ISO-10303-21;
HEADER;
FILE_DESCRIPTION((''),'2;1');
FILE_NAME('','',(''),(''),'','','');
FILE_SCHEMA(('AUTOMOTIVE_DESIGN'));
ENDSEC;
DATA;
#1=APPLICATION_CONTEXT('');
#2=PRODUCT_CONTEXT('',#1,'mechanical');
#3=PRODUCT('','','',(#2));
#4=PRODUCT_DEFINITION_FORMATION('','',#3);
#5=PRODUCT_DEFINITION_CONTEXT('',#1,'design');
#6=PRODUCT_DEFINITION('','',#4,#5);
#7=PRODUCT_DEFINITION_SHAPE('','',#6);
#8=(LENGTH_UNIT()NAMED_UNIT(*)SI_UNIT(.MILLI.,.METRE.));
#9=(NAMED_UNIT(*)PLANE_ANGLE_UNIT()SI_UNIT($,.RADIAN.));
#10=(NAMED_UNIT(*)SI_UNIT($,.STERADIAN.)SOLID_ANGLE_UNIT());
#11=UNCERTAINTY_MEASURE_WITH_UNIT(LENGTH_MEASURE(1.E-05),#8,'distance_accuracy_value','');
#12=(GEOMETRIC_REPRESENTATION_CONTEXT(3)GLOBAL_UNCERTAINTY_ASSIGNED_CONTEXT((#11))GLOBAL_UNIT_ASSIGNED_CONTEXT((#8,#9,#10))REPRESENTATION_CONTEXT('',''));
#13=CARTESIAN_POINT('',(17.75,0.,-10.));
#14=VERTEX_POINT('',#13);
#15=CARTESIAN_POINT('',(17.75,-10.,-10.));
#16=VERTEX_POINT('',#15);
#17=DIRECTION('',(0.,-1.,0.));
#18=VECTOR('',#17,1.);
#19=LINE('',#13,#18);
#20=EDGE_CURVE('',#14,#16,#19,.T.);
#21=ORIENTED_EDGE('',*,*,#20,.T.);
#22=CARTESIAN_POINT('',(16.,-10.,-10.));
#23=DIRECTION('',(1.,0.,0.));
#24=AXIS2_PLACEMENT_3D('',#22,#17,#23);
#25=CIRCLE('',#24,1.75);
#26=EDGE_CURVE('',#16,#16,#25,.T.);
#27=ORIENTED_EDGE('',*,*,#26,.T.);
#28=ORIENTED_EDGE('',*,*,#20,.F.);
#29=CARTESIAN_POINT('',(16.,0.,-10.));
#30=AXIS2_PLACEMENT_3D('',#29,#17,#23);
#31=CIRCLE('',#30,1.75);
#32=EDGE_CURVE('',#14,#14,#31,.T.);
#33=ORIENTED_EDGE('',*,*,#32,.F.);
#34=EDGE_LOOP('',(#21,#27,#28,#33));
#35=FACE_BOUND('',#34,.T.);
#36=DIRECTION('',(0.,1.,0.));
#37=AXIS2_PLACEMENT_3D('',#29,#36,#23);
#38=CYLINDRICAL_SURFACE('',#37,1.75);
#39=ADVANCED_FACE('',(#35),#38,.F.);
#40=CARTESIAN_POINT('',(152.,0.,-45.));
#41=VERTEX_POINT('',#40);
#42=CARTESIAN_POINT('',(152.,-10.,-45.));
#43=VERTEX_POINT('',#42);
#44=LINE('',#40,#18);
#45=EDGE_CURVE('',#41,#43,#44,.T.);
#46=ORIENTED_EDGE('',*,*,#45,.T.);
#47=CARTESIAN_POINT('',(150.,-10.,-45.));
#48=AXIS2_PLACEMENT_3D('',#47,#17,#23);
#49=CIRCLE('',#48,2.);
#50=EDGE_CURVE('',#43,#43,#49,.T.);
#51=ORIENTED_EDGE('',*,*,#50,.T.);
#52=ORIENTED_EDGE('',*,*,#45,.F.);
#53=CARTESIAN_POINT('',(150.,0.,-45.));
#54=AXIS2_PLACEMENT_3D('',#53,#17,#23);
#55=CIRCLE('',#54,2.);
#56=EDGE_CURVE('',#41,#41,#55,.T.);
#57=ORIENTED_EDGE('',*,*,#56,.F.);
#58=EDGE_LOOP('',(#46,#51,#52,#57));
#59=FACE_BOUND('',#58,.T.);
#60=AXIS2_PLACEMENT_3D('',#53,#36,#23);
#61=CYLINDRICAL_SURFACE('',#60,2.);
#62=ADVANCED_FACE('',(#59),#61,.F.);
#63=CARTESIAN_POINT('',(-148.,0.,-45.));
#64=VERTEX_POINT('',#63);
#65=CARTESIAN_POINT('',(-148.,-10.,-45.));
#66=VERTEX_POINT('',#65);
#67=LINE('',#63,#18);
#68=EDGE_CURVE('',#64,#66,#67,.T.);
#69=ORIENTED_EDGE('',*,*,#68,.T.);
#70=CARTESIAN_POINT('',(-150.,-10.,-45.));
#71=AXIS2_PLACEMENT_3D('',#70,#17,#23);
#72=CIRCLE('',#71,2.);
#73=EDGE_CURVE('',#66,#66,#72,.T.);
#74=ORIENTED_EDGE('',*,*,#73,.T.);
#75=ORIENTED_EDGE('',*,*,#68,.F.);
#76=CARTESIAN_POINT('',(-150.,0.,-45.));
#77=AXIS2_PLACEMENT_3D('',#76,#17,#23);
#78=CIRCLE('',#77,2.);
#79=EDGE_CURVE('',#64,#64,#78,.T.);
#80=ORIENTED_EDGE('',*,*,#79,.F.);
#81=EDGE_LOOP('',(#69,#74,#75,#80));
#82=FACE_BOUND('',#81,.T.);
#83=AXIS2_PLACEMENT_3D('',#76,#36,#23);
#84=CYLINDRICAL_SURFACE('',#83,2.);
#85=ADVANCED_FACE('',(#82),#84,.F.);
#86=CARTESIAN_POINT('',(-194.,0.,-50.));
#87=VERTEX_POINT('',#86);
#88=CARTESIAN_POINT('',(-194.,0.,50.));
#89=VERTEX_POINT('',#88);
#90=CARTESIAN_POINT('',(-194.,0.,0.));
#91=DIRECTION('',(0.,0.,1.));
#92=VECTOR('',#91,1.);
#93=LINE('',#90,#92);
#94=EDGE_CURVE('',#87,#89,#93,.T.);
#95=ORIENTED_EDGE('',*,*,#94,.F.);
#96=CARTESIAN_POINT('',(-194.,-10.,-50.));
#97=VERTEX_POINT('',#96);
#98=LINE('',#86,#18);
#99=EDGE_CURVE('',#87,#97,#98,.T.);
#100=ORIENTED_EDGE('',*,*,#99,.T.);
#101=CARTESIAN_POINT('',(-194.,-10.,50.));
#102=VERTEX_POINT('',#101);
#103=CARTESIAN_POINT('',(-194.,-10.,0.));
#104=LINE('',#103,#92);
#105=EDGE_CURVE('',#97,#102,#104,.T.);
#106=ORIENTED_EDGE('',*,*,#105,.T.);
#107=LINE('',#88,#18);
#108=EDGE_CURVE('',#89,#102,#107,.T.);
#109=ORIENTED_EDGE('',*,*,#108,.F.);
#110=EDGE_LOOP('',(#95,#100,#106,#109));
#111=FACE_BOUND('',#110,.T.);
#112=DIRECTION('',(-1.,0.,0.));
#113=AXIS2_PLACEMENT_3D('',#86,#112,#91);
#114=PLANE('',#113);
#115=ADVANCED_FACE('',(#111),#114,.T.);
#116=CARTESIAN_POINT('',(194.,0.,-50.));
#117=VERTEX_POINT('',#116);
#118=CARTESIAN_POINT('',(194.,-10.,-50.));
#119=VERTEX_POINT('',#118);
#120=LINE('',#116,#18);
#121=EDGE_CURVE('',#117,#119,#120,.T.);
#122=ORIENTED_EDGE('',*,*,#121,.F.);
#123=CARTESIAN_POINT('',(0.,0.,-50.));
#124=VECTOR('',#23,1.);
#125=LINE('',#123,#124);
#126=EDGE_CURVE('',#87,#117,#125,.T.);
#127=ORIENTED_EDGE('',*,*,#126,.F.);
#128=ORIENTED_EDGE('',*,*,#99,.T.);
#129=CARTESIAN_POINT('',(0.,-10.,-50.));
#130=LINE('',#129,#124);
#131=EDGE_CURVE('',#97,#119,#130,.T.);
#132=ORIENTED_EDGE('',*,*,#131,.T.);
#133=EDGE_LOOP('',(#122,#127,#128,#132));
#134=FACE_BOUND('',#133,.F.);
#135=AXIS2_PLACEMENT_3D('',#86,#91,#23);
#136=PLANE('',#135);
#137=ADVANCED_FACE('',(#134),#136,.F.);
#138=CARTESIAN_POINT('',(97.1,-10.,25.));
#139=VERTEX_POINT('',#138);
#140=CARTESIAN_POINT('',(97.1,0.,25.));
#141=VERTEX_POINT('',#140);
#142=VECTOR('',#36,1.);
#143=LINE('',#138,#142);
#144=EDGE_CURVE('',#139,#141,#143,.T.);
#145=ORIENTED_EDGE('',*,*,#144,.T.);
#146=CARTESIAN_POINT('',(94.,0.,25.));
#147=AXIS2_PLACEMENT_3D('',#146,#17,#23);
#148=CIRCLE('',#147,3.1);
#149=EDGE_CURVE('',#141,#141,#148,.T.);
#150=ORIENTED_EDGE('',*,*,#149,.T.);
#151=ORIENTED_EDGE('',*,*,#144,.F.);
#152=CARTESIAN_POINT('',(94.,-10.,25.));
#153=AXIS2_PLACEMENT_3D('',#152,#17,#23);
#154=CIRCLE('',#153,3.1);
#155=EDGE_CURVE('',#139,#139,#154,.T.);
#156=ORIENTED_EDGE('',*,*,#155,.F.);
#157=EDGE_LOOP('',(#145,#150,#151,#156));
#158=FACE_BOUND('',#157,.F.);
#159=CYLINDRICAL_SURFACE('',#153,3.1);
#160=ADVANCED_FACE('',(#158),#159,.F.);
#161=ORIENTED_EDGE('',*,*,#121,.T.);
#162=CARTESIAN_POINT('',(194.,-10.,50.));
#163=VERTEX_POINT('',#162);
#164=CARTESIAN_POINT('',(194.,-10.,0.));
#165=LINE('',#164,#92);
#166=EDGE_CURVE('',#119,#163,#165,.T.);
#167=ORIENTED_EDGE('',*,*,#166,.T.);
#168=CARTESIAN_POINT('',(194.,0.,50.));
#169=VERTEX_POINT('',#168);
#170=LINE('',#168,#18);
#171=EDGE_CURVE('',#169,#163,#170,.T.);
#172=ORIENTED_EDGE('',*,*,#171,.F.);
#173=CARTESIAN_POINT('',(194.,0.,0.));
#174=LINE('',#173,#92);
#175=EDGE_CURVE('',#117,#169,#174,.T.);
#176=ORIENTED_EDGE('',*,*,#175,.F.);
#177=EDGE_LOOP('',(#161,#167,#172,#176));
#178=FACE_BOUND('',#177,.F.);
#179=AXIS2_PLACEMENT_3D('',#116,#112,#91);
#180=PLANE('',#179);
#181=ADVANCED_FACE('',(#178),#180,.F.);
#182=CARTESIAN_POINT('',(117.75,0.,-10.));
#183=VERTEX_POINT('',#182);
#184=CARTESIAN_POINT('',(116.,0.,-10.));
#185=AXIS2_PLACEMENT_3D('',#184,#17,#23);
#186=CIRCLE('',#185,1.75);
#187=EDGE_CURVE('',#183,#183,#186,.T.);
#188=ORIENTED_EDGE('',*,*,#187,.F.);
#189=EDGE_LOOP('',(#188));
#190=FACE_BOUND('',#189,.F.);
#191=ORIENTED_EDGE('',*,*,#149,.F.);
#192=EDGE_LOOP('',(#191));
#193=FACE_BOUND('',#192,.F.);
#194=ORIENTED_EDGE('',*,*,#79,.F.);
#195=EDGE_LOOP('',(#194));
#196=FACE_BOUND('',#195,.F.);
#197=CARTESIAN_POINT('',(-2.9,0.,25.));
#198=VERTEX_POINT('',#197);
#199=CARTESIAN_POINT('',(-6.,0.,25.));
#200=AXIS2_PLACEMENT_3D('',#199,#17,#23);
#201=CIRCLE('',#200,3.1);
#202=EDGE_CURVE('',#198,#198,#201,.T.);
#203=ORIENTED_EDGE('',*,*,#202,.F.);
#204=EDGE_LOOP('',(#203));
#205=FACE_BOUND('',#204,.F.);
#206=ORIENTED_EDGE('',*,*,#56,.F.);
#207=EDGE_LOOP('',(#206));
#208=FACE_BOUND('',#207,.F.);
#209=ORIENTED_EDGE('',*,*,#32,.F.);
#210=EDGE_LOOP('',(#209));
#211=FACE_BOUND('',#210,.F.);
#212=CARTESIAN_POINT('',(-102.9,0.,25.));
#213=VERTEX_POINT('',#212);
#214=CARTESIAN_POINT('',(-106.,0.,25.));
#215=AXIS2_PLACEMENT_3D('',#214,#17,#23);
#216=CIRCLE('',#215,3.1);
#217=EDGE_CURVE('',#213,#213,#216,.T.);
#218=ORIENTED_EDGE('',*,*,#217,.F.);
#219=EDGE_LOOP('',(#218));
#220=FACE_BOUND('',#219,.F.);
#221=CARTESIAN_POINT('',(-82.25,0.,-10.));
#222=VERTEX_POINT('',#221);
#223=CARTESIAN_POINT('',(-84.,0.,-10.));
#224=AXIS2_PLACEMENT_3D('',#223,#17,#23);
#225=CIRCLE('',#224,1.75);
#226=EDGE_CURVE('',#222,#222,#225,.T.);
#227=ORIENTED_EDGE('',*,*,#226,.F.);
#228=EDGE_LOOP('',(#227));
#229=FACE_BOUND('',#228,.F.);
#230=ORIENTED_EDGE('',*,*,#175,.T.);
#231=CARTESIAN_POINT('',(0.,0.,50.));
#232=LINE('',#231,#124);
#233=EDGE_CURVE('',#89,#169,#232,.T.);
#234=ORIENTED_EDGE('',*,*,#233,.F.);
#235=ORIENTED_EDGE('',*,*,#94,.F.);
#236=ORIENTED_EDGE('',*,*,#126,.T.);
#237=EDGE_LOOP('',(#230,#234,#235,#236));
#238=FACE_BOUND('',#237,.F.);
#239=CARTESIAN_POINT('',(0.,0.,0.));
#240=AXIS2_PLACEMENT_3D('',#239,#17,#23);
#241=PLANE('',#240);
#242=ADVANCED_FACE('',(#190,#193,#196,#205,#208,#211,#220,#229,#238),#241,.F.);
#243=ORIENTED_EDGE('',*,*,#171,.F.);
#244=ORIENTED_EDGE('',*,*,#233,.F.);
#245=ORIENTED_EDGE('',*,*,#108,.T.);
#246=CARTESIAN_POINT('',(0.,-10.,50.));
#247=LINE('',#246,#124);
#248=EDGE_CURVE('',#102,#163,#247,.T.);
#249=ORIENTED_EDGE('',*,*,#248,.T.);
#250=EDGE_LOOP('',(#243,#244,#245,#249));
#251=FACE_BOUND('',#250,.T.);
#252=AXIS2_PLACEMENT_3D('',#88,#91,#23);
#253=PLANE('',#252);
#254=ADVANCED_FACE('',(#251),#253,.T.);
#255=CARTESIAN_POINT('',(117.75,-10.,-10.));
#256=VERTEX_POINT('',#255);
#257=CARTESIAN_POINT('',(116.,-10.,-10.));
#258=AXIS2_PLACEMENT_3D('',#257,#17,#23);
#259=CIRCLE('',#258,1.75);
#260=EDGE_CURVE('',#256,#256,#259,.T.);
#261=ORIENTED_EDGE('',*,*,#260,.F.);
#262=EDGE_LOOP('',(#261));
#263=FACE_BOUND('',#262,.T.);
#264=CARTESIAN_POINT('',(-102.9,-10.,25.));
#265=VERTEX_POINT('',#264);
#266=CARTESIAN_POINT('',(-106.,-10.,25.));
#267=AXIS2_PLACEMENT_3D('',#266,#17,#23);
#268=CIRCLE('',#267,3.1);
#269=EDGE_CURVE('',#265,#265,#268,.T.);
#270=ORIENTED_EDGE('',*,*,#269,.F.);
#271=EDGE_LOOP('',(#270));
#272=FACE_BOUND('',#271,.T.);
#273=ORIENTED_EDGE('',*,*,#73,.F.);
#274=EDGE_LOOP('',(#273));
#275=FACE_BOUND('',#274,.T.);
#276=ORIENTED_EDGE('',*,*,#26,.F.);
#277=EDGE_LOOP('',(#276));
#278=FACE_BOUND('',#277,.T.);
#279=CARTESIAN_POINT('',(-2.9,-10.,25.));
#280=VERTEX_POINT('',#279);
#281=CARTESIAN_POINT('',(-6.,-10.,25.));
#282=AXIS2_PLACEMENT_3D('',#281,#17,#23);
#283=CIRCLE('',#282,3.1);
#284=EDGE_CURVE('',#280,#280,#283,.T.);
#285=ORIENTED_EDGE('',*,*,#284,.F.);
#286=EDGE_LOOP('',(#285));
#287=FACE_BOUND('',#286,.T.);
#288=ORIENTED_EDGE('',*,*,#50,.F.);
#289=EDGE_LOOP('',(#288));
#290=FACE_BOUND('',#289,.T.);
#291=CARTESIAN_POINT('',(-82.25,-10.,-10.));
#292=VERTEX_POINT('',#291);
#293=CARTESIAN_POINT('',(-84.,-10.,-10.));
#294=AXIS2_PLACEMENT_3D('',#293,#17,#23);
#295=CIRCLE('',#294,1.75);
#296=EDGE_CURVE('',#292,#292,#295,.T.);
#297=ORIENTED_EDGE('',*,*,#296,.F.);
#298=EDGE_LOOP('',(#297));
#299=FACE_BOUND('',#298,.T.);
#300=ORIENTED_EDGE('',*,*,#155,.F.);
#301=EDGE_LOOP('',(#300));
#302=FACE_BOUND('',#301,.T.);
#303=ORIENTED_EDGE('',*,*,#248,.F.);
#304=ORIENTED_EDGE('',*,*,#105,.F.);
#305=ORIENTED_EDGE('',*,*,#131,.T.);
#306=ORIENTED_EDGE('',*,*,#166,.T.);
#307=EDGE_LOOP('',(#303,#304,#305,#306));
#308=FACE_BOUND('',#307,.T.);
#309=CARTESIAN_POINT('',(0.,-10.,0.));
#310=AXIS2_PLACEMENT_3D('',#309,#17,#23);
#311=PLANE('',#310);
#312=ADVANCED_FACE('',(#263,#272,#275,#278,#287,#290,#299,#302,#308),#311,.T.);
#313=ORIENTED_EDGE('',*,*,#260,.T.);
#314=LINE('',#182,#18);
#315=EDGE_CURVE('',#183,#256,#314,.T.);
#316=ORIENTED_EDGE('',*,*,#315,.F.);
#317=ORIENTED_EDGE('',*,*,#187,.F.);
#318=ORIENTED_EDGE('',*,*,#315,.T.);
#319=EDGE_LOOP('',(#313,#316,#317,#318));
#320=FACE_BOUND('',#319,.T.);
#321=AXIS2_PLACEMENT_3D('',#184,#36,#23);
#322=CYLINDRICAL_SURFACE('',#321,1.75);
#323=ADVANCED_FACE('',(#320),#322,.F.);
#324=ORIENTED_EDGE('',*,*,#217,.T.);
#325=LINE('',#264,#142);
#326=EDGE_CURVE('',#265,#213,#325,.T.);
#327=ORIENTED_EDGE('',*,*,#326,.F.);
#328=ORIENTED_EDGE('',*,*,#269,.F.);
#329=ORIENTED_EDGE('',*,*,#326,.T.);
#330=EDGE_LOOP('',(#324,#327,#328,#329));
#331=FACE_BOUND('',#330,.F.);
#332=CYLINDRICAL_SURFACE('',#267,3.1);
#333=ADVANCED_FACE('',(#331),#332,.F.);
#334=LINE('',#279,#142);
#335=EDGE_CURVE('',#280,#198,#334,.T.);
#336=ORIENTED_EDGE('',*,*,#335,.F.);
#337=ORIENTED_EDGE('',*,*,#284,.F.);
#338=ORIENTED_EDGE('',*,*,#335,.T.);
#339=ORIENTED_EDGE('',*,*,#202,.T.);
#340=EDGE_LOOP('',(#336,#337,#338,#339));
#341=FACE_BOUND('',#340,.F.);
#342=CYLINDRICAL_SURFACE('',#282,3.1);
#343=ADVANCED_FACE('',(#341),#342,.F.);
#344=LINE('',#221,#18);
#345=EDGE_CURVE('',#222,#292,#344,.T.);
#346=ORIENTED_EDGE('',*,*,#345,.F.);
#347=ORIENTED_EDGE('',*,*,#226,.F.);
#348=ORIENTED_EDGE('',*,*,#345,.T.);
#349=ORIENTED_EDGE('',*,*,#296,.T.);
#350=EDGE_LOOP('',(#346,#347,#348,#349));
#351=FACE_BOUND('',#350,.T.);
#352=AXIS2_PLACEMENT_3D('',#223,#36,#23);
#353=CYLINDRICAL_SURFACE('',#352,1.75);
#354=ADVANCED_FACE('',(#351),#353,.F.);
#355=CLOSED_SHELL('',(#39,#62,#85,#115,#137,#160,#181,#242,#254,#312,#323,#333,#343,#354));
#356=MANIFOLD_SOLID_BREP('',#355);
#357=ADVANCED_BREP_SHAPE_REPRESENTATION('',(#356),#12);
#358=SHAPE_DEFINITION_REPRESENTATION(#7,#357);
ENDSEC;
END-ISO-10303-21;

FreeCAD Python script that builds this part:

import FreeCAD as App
import Part
import Sketcher
Q = App.Units.Quantity


def add_polygon(sketch, points):
    """Adds a closed chain of lines whose ends are joined by coincident constraints."""
    first, n = sketch.GeometryCount, len(points)
    for a, b in zip(points, points[1:] + points[:1]):
        sketch.addGeometry(Part.LineSegment(App.Vector(*a, 0), App.Vector(*b, 0)), False)
    for i in range(n):
        sketch.addConstraint(Sketcher.Constraint("Coincident", first + i, 2, first + (i + 1) % n, 1))

doc = App.newDocument("Part")
body = doc.addObject("PartDesign::Body", "Body")

# Sketch on XZ plane
sketch1 = body.newObject("Sketcher::SketchObject", "Sketch")
sketch1.AttachmentSupport = (doc.getObject("XZ_Plane"), [""])
sketch1.MapMode = "FlatFace"
add_polygon(sketch1, [(-194, 50), (-194, -50), (194, -50), (194, 50)])  # lines 0-3
sketch1.addGeometry(Part.Circle(App.Vector(-150, -45, 0), App.Vector(0, 0, 1), 2), False)  # 4
sketch1.addGeometry(Part.Circle(App.Vector(150, -45, 0), App.Vector(0, 0, 1), 2), False)  # 5
sketch1.addGeometry(Part.Circle(App.Vector(-84, -10, 0), App.Vector(0, 0, 1), 1.8), False)  # 6
sketch1.addGeometry(Part.Circle(App.Vector(16, -10, 0), App.Vector(0, 0, 1), 1.8), False)  # 7
sketch1.addGeometry(Part.Circle(App.Vector(116, -10, 0), App.Vector(0, 0, 1), 1.8), False)  # 8
sketch1.addConstraint(Sketcher.Constraint("Vertical", 0))
sketch1.addConstraint(Sketcher.Constraint("Horizontal", 1))
sketch1.addConstraint(Sketcher.Constraint("Vertical", 2))
sketch1.addConstraint(Sketcher.Constraint("Horizontal", 3))
sketch1.addConstraint(Sketcher.Constraint("Equal", 4, 5))
sketch1.addConstraint(Sketcher.Constraint("Equal", 6, 7))
sketch1.addConstraint(Sketcher.Constraint("Equal", 7, 8))
sketch1.addConstraint(Sketcher.Constraint("Symmetric", 0, 2, 2, 2, -1, 1))
sketch1.addConstraint(Sketcher.Constraint("Symmetric", 4, 3, 5, 3, -2))
sketch1.addConstraint(Sketcher.Constraint("Horizontal", 6, 3, 7, 3))
sketch1.addConstraint(Sketcher.Constraint("Horizontal", 7, 3, 8, 3))
sketch1.addConstraint(Sketcher.Constraint("Diameter", 4, Q("4 mm")))
sketch1.addConstraint(Sketcher.Constraint("Diameter", 6, Q("3.5 mm")))
sketch1.addConstraint(Sketcher.Constraint("DistanceX", 1, 1, 1, 2, Q("388 mm")))
sketch1.addConstraint(Sketcher.Constraint("DistanceY", 0, 2, 0, 1, Q("100 mm")))
sketch1.addConstraint(Sketcher.Constraint("DistanceX", 4, 3, -1, 1, Q("150 mm")))
sketch1.addConstraint(Sketcher.Constraint("DistanceY", 4, 3, -1, 1, Q("45 mm")))
sketch1.addConstraint(Sketcher.Constraint("DistanceX", 6, 3, -1, 1, Q("84 mm")))
sketch1.addConstraint(Sketcher.Constraint("DistanceY", 6, 3, -1, 1, Q("10 mm")))
sketch1.addConstraint(Sketcher.Constraint("DistanceX", -1, 1, 7, 3, Q("16 mm")))
sketch1.addConstraint(Sketcher.Constraint("DistanceX", -1, 1, 8, 3, Q("116 mm")))
pad1 = body.newObject("PartDesign::Pad", "Pad")
pad1.Profile = sketch1
pad1.Length = 10

# Sketch on XZ plane
sketch2 = body.newObject("Sketcher::SketchObject", "Sketch001")
sketch2.AttachmentSupport = (doc.getObject("XZ_Plane"), [""])
sketch2.MapMode = "FlatFace"
sketch2.AttachmentOffset = App.Placement(App.Vector(0, 0, 10), App.Rotation())
sketch2.addGeometry(Part.Circle(App.Vector(-6, 25, 0), App.Vector(0, 0, 1), 3.1), False)
sketch2.addGeometry(Part.Circle(App.Vector(94, 25, 0), App.Vector(0, 0, 1), 3.1), False)
sketch2.addGeometry(Part.Circle(App.Vector(-106, 25, 0), App.Vector(0, 0, 1), 3.1), False)
sketch2.addConstraint(Sketcher.Constraint("Equal", 0, 1))
sketch2.addConstraint(Sketcher.Constraint("Equal", 1, 2))
sketch2.addConstraint(Sketcher.Constraint("Horizontal", 0, 3, 1, 3))
sketch2.addConstraint(Sketcher.Constraint("Horizontal", 1, 3, 2, 3))
sketch2.addConstraint(Sketcher.Constraint("Diameter", 0, Q("6.2 mm")))
sketch2.addConstraint(Sketcher.Constraint("DistanceX", 0, 3, -1, 1, Q("6 mm")))
sketch2.addConstraint(Sketcher.Constraint("DistanceY", -1, 1, 0, 3, Q("25 mm")))
sketch2.addConstraint(Sketcher.Constraint("DistanceX", -1, 1, 1, 3, Q("94 mm")))
sketch2.addConstraint(Sketcher.Constraint("DistanceX", 2, 3, -1, 1, Q("106 mm")))
pocket1 = body.newObject("PartDesign::Pocket", "Pocket")
pocket1.Profile = sketch2
pocket1.Length = 25

doc.recompute()
